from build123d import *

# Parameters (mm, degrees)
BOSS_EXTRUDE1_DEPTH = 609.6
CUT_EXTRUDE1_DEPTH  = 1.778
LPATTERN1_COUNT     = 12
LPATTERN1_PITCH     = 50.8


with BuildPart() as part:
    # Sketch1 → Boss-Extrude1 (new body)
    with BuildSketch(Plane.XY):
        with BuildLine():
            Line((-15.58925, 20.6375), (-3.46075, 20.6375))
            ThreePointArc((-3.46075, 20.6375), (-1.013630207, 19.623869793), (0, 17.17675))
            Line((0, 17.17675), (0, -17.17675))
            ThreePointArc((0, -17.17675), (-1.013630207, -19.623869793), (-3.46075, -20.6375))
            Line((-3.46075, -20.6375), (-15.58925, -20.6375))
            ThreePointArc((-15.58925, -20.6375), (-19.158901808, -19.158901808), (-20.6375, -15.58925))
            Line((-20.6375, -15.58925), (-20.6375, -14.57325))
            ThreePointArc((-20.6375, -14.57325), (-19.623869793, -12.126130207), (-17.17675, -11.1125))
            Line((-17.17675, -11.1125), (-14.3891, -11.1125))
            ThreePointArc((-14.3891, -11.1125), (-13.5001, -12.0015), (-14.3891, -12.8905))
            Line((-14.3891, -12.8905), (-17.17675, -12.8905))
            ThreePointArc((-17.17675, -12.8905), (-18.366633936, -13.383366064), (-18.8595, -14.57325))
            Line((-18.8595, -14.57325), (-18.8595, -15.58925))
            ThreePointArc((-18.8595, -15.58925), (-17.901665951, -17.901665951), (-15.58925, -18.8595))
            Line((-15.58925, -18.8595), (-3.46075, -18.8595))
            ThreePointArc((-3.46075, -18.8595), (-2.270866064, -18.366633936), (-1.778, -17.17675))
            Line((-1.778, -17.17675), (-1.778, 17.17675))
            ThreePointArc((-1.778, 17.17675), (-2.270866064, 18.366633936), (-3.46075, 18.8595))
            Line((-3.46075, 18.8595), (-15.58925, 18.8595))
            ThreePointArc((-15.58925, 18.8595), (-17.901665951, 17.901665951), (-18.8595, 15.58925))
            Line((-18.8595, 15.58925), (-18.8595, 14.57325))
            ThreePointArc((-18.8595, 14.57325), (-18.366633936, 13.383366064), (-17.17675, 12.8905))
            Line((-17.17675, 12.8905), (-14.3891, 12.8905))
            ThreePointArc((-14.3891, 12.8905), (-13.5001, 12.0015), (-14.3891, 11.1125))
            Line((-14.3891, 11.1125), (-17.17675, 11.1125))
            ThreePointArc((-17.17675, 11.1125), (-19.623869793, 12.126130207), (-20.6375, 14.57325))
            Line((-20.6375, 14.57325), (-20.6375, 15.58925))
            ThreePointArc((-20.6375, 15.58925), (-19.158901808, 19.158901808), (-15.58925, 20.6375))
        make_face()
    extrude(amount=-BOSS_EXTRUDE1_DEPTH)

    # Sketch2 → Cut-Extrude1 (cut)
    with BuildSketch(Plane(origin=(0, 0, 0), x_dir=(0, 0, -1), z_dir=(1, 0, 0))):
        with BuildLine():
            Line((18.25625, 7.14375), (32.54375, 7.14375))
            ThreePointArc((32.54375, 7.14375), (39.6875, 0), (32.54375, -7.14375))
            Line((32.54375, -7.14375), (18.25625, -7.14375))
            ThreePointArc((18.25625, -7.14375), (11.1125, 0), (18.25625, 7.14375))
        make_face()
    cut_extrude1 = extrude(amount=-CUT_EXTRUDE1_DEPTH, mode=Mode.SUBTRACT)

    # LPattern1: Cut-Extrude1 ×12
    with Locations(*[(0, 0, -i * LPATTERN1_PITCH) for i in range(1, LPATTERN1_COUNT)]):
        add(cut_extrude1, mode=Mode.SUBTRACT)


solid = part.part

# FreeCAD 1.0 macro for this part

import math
import FreeCAD as App
import Part
import Sketcher
from FreeCAD import Vector
Q = App.Units.Quantity

doc = App.newDocument("Part")
body = doc.addObject("PartDesign::Body", "Body")

sketch1 = body.newObject("Sketcher::SketchObject", "Sketch")
sketch1.AttachmentSupport = (doc.getObject("XY_Plane"), [""])
sketch1.MapMode = "FlatFace"
sketch1.addGeometry(Part.LineSegment(Vector(-3.46075, 20.6375, 0), Vector(-15.58925, 20.6375, 0)), False)
sketch1.addGeometry(Part.ArcOfCircle(Part.Circle(Vector(-15.58925, 15.58925, 0), Vector(0, 0, 1), 5.04825), math.radians(90), math.radians(180)), False)
sketch1.addGeometry(Part.LineSegment(Vector(-20.6375, 15.58925, 0), Vector(-20.6375, 14.57325, 0)), False)
sketch1.addGeometry(Part.ArcOfCircle(Part.Circle(Vector(-17.17675, 14.57325, 0), Vector(0, 0, 1), 3.46075), math.radians(180), math.radians(270)), False)
sketch1.addGeometry(Part.LineSegment(Vector(-17.17675, 11.1125, 0), Vector(-14.3891, 11.1125, 0)), False)
sketch1.addGeometry(Part.ArcOfCircle(Part.Circle(Vector(-14.3891, 12.0015, 0), Vector(0, 0, 1), 0.889), math.radians(-90), math.radians(90)), False)
sketch1.addGeometry(Part.LineSegment(Vector(-14.3891, 12.8905, 0), Vector(-17.17675, 12.8905, 0)), False)
sketch1.addGeometry(Part.ArcOfCircle(Part.Circle(Vector(-17.17675, 14.57325, 0), Vector(0, 0, 1), 1.68275), math.radians(180), math.radians(270)), False)
sketch1.addGeometry(Part.LineSegment(Vector(-18.8595, 14.57325, 0), Vector(-18.8595, 15.58925, 0)), False)
sketch1.addGeometry(Part.ArcOfCircle(Part.Circle(Vector(-15.58925, 15.58925, 0), Vector(0, 0, 1), 3.27025), math.radians(90), math.radians(180)), False)
sketch1.addGeometry(Part.LineSegment(Vector(-15.58925, 18.8595, 0), Vector(-3.46075, 18.8595, 0)), False)
sketch1.addGeometry(Part.ArcOfCircle(Part.Circle(Vector(-3.46075, 17.17675, 0), Vector(0, 0, 1), 1.68275), math.radians(0), math.radians(90)), False)
sketch1.addGeometry(Part.LineSegment(Vector(-1.778, 17.17675, 0), Vector(-1.778, -17.17675, 0)), False)
sketch1.addGeometry(Part.ArcOfCircle(Part.Circle(Vector(-3.46075, -17.17675, 0), Vector(0, 0, 1), 1.68275), math.radians(-90), math.radians(0)), False)
sketch1.addGeometry(Part.LineSegment(Vector(-3.46075, -18.8595, 0), Vector(-15.58925, -18.8595, 0)), False)
sketch1.addGeometry(Part.ArcOfCircle(Part.Circle(Vector(-15.58925, -15.58925, 0), Vector(0, 0, 1), 3.27025), math.radians(-180), math.radians(-90)), False)
sketch1.addGeometry(Part.LineSegment(Vector(-18.8595, -15.58925, 0), Vector(-18.8595, -14.57325, 0)), False)
sketch1.addGeometry(Part.ArcOfCircle(Part.Circle(Vector(-17.17675, -14.57325, 0), Vector(0, 0, 1), 1.68275), math.radians(90), math.radians(180)), False)
sketch1.addGeometry(Part.LineSegment(Vector(-17.17675, -12.8905, 0), Vector(-14.3891, -12.8905, 0)), False)
sketch1.addGeometry(Part.ArcOfCircle(Part.Circle(Vector(-14.3891, -12.0015, 0), Vector(0, 0, 1), 0.889), math.radians(-90), math.radians(90)), False)
sketch1.addGeometry(Part.LineSegment(Vector(-14.3891, -11.1125, 0), Vector(-17.17675, -11.1125, 0)), False)
sketch1.addGeometry(Part.ArcOfCircle(Part.Circle(Vector(-17.17675, -14.57325, 0), Vector(0, 0, 1), 3.46075), math.radians(90), math.radians(180)), False)
sketch1.addGeometry(Part.LineSegment(Vector(-20.6375, -14.57325, 0), Vector(-20.6375, -15.58925, 0)), False)
sketch1.addGeometry(Part.ArcOfCircle(Part.Circle(Vector(-15.58925, -15.58925, 0), Vector(0, 0, 1), 5.04825), math.radians(180), math.radians(270)), False)
sketch1.addGeometry(Part.LineSegment(Vector(-15.58925, -20.6375, 0), Vector(-3.46075, -20.6375, 0)), False)
sketch1.addGeometry(Part.ArcOfCircle(Part.Circle(Vector(-3.46075, -17.17675, 0), Vector(0, 0, 1), 3.46075), math.radians(-90), math.radians(0)), False)
sketch1.addGeometry(Part.LineSegment(Vector(0, -17.17675, 0), Vector(0, 17.17675, 0)), False)
sketch1.addGeometry(Part.ArcOfCircle(Part.Circle(Vector(-3.46075, 17.17675, 0), Vector(0, 0, 1), 3.46075), math.radians(0), math.radians(90)), False)
sketch1.addConstraint(Sketcher.Constraint("Tangent", 0, 2, 1, 1))
sketch1.addConstraint(Sketcher.Constraint("Tangent", 1, 2, 2, 1))
sketch1.addConstraint(Sketcher.Constraint("Tangent", 2, 2, 3, 1))
sketch1.addConstraint(Sketcher.Constraint("Tangent", 3, 2, 4, 1))
sketch1.addConstraint(Sketcher.Constraint("Tangent", 4, 2, 5, 1))
sketch1.addConstraint(Sketcher.Constraint("Tangent", 5, 2, 6, 1))
sketch1.addConstraint(Sketcher.Constraint("Tangent", 6, 2, 7, 2))
sketch1.addConstraint(Sketcher.Constraint("Tangent", 7, 1, 8, 1))
sketch1.addConstraint(Sketcher.Constraint("Tangent", 8, 2, 9, 2))
sketch1.addConstraint(Sketcher.Constraint("Tangent", 9, 1, 10, 1))
sketch1.addConstraint(Sketcher.Constraint("Tangent", 10, 2, 11, 2))
sketch1.addConstraint(Sketcher.Constraint("Tangent", 11, 1, 12, 1))
sketch1.addConstraint(Sketcher.Constraint("Tangent", 12, 2, 13, 2))
sketch1.addConstraint(Sketcher.Constraint("Tangent", 13, 1, 14, 1))
sketch1.addConstraint(Sketcher.Constraint("Tangent", 14, 2, 15, 2))
sketch1.addConstraint(Sketcher.Constraint("Tangent", 15, 1, 16, 1))
sketch1.addConstraint(Sketcher.Constraint("Tangent", 16, 2, 17, 2))
sketch1.addConstraint(Sketcher.Constraint("Tangent", 17, 1, 18, 1))
sketch1.addConstraint(Sketcher.Constraint("Tangent", 18, 2, 19, 1))
sketch1.addConstraint(Sketcher.Constraint("Tangent", 19, 2, 20, 1))
sketch1.addConstraint(Sketcher.Constraint("Tangent", 20, 2, 21, 1))
sketch1.addConstraint(Sketcher.Constraint("Tangent", 21, 2, 22, 1))
sketch1.addConstraint(Sketcher.Constraint("Tangent", 22, 2, 23, 1))
sketch1.addConstraint(Sketcher.Constraint("Tangent", 23, 2, 24, 1))
sketch1.addConstraint(Sketcher.Constraint("Tangent", 24, 2, 25, 1))
sketch1.addConstraint(Sketcher.Constraint("Tangent", 25, 2, 26, 1))
sketch1.addConstraint(Sketcher.Constraint("Tangent", 26, 2, 27, 1))
sketch1.addConstraint(Sketcher.Constraint("Tangent", 27, 2, 0, 1))
sketch1.addConstraint(Sketcher.Constraint("Horizontal", 0))
sketch1.addConstraint(Sketcher.Constraint("Vertical", 2))
sketch1.addConstraint(Sketcher.Constraint("Horizontal", 4))
sketch1.addConstraint(Sketcher.Constraint("Horizontal", 6))
sketch1.addConstraint(Sketcher.Constraint("Vertical", 8))
sketch1.addConstraint(Sketcher.Constraint("Horizontal", 10))
sketch1.addConstraint(Sketcher.Constraint("Vertical", 12))
sketch1.addConstraint(Sketcher.Constraint("Horizontal", 14))
sketch1.addConstraint(Sketcher.Constraint("Vertical", 16))
sketch1.addConstraint(Sketcher.Constraint("Horizontal", 18))
sketch1.addConstraint(Sketcher.Constraint("Horizontal", 20))
sketch1.addConstraint(Sketcher.Constraint("Vertical", 22))
sketch1.addConstraint(Sketcher.Constraint("Horizontal", 24))
sketch1.addConstraint(Sketcher.Constraint("Vertical", 26))
sketch1.addConstraint(Sketcher.Constraint("Coincident", 7, 3, 3, 3))
sketch1.addConstraint(Sketcher.Constraint("Coincident", 9, 3, 1, 3))
sketch1.addConstraint(Sketcher.Constraint("Coincident", 21, 3, 17, 3))
sketch1.addConstraint(Sketcher.Constraint("Coincident", 23, 3, 15, 3))
sketch1.addConstraint(Sketcher.Constraint("Coincident", 25, 3, 13, 3))
sketch1.addConstraint(Sketcher.Constraint("Coincident", 27, 3, 11, 3))
sketch1.addConstraint(Sketcher.Constraint("Equal", 7, 11))
sketch1.addConstraint(Sketcher.Constraint("Equal", 11, 13))
sketch1.addConstraint(Sketcher.Constraint("Equal", 9, 15))
sketch1.addConstraint(Sketcher.Constraint("Equal", 13, 17))
sketch1.addConstraint(Sketcher.Constraint("Symmetric", 25, 2, 26, 2, -1, 1))
sketch1.addConstraint(Sketcher.Constraint("Symmetric", 3, 3, 17, 3, -1))
sketch1.addConstraint(Sketcher.Constraint("Vertical", 5, 3, 19, 3))
sketch1.addConstraint(Sketcher.Constraint("Radius", 5, Q("0.035 in")))
sketch1.addConstraint(Sketcher.Constraint("DistanceY", 2, 2, 2, 1, Q("0.04 in")))
sketch1.addConstraint(Sketcher.Constraint("DistanceX", 3, 3, 11, 3, Q("0.54 in")))
sketch1.addConstraint(Sketcher.Constraint("DistanceY", 13, 3, 3, 3, Q("1.25 in")))
sketch1.addConstraint(Sketcher.Constraint("DistanceY", 5, 3, 0, 2, Q("0.34 in")))
sketch1.addConstraint(Sketcher.Constraint("DistanceX", 0, 2, 0, 1, Q("0.4775 in")))
sketch1.addConstraint(Sketcher.Constraint("DistanceX", 5, 3, -1, 1, Q("0.5665 in")))
pad1 = body.newObject("PartDesign::Pad", "Pad")
pad1.Profile = sketch1
pad1.Length = Q("24 in")
pad1.Reversed = True

sketch2 = body.newObject("Sketcher::SketchObject", "Sketch001")
sketch2.AttachmentSupport = (doc.getObject("YZ_Plane"), [""])
sketch2.MapMode = "FlatFace"
sketch2.addGeometry(Part.LineSegment(Vector(7.14375, -32.54375, 0), Vector(7.14375, -18.25625, 0)), False)
sketch2.addGeometry(Part.ArcOfCircle(Part.Circle(Vector(0, -18.25625, 0), Vector(0, 0, 1), 7.14375), math.radians(0), math.radians(180)), False)
sketch2.addGeometry(Part.LineSegment(Vector(-7.14375, -18.25625, 0), Vector(-7.14375, -32.54375, 0)), False)
sketch2.addGeometry(Part.ArcOfCircle(Part.Circle(Vector(0, -32.54375, 0), Vector(0, 0, 1), 7.14375), math.radians(180), math.radians(360)), False)
sketch2.addConstraint(Sketcher.Constraint("Tangent", 0, 2, 1, 1))
sketch2.addConstraint(Sketcher.Constraint("Tangent", 1, 2, 2, 1))
sketch2.addConstraint(Sketcher.Constraint("Tangent", 2, 2, 3, 1))
sketch2.addConstraint(Sketcher.Constraint("Tangent", 3, 2, 0, 1))
sketch2.addConstraint(Sketcher.Constraint("Vertical", 0))
sketch2.addConstraint(Sketcher.Constraint("Vertical", 2))
sketch2.addConstraint(Sketcher.Constraint("PointOnObject", 1, 3, -2))
sketch2.addConstraint(Sketcher.Constraint("Radius", 1, Q("0.28125 in")))
sketch2.addConstraint(Sketcher.Constraint("DistanceY", 0, 1, 0, 2, Q("0.5625 in")))
sketch2.addConstraint(Sketcher.Constraint("DistanceY", 1, 3, -1, 1, Q("0.71875 in")))
pocket1 = body.newObject("PartDesign::Pocket", "Pocket")
pocket1.Profile = sketch2
pocket1.Length = Q("0.07 in")
doc.recompute()

linearpattern = body.newObject("PartDesign::LinearPattern", "LinearPattern")
linearpattern.Originals = [pocket1]
linearpattern.Direction = (doc.getObject("Z_Axis"), [""])
linearpattern.Mode = "offset"
linearpattern.Offset = Q("2 in")
linearpattern.Occurrences = 12
linearpattern.Reversed = True
body.Tip = linearpattern

doc.recompute()
